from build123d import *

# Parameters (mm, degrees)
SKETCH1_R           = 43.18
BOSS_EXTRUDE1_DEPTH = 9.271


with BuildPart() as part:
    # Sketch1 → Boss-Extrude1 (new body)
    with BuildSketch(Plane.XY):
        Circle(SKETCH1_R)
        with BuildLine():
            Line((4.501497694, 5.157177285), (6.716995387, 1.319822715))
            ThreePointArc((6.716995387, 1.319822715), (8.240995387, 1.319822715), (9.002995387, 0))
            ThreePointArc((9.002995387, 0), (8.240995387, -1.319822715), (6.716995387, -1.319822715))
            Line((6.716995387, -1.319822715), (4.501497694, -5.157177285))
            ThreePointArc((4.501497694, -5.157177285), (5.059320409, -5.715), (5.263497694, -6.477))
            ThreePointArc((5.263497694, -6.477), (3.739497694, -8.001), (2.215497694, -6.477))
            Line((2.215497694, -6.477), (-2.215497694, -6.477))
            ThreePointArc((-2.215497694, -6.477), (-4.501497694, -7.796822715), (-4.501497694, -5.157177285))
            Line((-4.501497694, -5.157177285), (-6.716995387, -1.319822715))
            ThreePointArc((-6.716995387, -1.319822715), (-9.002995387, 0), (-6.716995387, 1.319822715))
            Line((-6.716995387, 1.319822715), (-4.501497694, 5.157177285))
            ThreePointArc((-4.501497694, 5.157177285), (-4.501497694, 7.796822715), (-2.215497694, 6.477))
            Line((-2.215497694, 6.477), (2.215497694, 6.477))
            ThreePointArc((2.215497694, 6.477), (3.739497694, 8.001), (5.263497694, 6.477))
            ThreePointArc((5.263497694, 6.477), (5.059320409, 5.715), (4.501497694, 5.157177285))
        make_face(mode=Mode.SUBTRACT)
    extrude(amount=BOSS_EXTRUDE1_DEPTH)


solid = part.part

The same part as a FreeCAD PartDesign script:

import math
import FreeCAD as App
import Part
import Sketcher
Q = App.Units.Quantity

doc = App.newDocument("Part")
body = doc.addObject("PartDesign::Body", "Body")

# Sketch on XY plane
sketch1 = body.newObject("Sketcher::SketchObject", "Sketch")
sketch1.AttachmentSupport = (doc.getObject("XY_Plane"), [""])
sketch1.MapMode = "FlatFace"
sketch1.addGeometry(Part.Circle(App.Vector(0, 0, 0), App.Vector(0, 0, 1), 43.18), False)
sketch1.addGeometry(Part.ArcOfCircle(Part.Circle(App.Vector(3.739498, 6.477, 0), App.Vector(0, 0, 1), 1.524), math.radians(-60), math.radians(0)), False)
sketch1.addGeometry(Part.LineSegment(App.Vector(4.501498, 5.157177, 0), App.Vector(6.716995, 1.319823, 0)), False)
sketch1.addGeometry(Part.ArcOfCircle(Part.Circle(App.Vector(7.478995, 0, 0), App.Vector(0, 0, 1), 1.524), math.radians(0), math.radians(120)), False)
sketch1.addGeometry(Part.ArcOfCircle(Part.Circle(App.Vector(7.478995, 0, 0), App.Vector(0, 0, 1), 1.524), math.radians(-120), math.radians(0)), False)
sketch1.addGeometry(Part.LineSegment(App.Vector(6.716995, -1.319823, 0), App.Vector(4.501498, -5.157177, 0)), False)
sketch1.addGeometry(Part.ArcOfCircle(Part.Circle(App.Vector(3.739498, -6.477, 0), App.Vector(0, 0, 1), 1.524), math.radians(0), math.radians(60)), False)
sketch1.addGeometry(Part.ArcOfCircle(Part.Circle(App.Vector(3.739498, -6.477, 0), App.Vector(0, 0, 1), 1.524), math.radians(180), math.radians(360)), False)
sketch1.addGeometry(Part.LineSegment(App.Vector(2.215498, -6.477, 0), App.Vector(-2.215498, -6.477, 0)), False)
sketch1.addGeometry(Part.ArcOfCircle(Part.Circle(App.Vector(-3.739498, -6.477, 0), App.Vector(0, 0, 1), 1.524), math.radians(120), math.radians(360)), False)
sketch1.addGeometry(Part.LineSegment(App.Vector(-4.501498, -5.157177, 0), App.Vector(-6.716995, -1.319823, 0)), False)
sketch1.addGeometry(Part.ArcOfCircle(Part.Circle(App.Vector(-7.478995, 0, 0), App.Vector(0, 0, 1), 1.524), math.radians(60), math.radians(300)), False)
sketch1.addGeometry(Part.LineSegment(App.Vector(-6.716995, 1.319823, 0), App.Vector(-4.501498, 5.157177, 0)), False)
sketch1.addGeometry(Part.ArcOfCircle(Part.Circle(App.Vector(-3.739498, 6.477, 0), App.Vector(0, 0, 1), 1.524), math.radians(0), math.radians(240)), False)
sketch1.addGeometry(Part.LineSegment(App.Vector(-2.215498, 6.477, 0), App.Vector(2.215498, 6.477, 0)), False)
sketch1.addGeometry(Part.ArcOfCircle(Part.Circle(App.Vector(3.739498, 6.477, 0), App.Vector(0, 0, 1), 1.524), math.radians(0), math.radians(180)), False)
sketch1.addConstraint(Sketcher.Constraint("Coincident", 1, 1, 2, 1))
sketch1.addConstraint(Sketcher.Constraint("Coincident", 2, 2, 3, 2))
sketch1.addConstraint(Sketcher.Constraint("Tangent", 3, 1, 4, 2))
sketch1.addConstraint(Sketcher.Constraint("Coincident", 4, 1, 5, 1))
sketch1.addConstraint(Sketcher.Constraint("Coincident", 5, 2, 6, 2))
sketch1.addConstraint(Sketcher.Constraint("Tangent", 6, 1, 7, 2))
sketch1.addConstraint(Sketcher.Constraint("Coincident", 7, 1, 8, 1))
sketch1.addConstraint(Sketcher.Constraint("Coincident", 8, 2, 9, 2))
sketch1.addConstraint(Sketcher.Constraint("Coincident", 9, 1, 10, 1))
sketch1.addConstraint(Sketcher.Constraint("Coincident", 10, 2, 11, 2))
sketch1.addConstraint(Sketcher.Constraint("Coincident", 11, 1, 12, 1))
sketch1.addConstraint(Sketcher.Constraint("Coincident", 12, 2, 13, 2))
sketch1.addConstraint(Sketcher.Constraint("Coincident", 13, 1, 14, 1))
sketch1.addConstraint(Sketcher.Constraint("Coincident", 14, 2, 15, 2))
sketch1.addConstraint(Sketcher.Constraint("Tangent", 15, 1, 1, 2))
sketch1.addConstraint(Sketcher.Constraint("Horizontal", 8))
sketch1.addConstraint(Sketcher.Constraint("Horizontal", 14))
sketch1.addConstraint(Sketcher.Constraint("Coincident", 0, 3, -1, 1))
sketch1.addConstraint(Sketcher.Constraint("Equal", 1, 3))
sketch1.addConstraint(Sketcher.Constraint("Equal", 3, 4))
sketch1.addConstraint(Sketcher.Constraint("Equal", 4, 6))
sketch1.addConstraint(Sketcher.Constraint("Equal", 6, 7))
sketch1.addConstraint(Sketcher.Constraint("Equal", 7, 9))
sketch1.addConstraint(Sketcher.Constraint("Equal", 9, 11))
sketch1.addConstraint(Sketcher.Constraint("Equal", 11, 13))
sketch1.addConstraint(Sketcher.Constraint("Equal", 13, 15))
sketch1.addConstraint(Sketcher.Constraint("Symmetric", 1, 3, 9, 3, -1, 1))
sketch1.addConstraint(Sketcher.Constraint("Symmetric", 3, 3, 11, 3, -1, 1))
sketch1.addConstraint(Sketcher.Constraint("Symmetric", 6, 3, 13, 3, -1, 1))
sketch1.addConstraint(Sketcher.Constraint("Symmetric", 6, 3, 9, 3, -2))
sketch1.addConstraint(Sketcher.Constraint("Symmetric", 4, 1, 10, 2, -2))
sketch1.addConstraint(Sketcher.Constraint("PointOnObject", 3, 1, -1))
sketch1.addConstraint(Sketcher.Constraint("Parallel", 2, 10))
sketch1.addConstraint(Sketcher.Constraint("Parallel", 5, 12))
sketch1.addConstraint(Sketcher.Constraint("Horizontal", 9, 3, 6, 1))
sketch1.addConstraint(Sketcher.Constraint("Horizontal", 6, 1, 7, 1))
sketch1.addConstraint(Sketcher.Constraint("Horizontal", 5, 2, 9, 1))
sketch1.addConstraint(Sketcher.Constraint("Horizontal", 2, 2, 11, 1))
sketch1.addConstraint(Sketcher.Constraint("Horizontal", 15, 3, 13, 1))
sketch1.addConstraint(Sketcher.Constraint("Horizontal", 14, 2, 15, 1))
sketch1.addConstraint(Sketcher.Constraint("Vertical", 2, 2, 4, 1))
sketch1.addConstraint(Sketcher.Constraint("Diameter", 0, Q("3.4 in")))
sketch1.addConstraint(Sketcher.Constraint("Radius", 1, Q("0.06 in")))
sketch1.addConstraint(Sketcher.Constraint("Angle", 2, Q("-60 deg")))
sketch1.addConstraint(Sketcher.Constraint("DistanceY", 6, 3, 1, 3, Q("0.51 in")))
sketch1.addConstraint(Sketcher.Constraint("DistanceX", 15, 3, 1, 1, Q("0.03 in")))
sketch1.addConstraint(Sketcher.Constraint("DistanceX", 2, 2, 3, 3, Q("0.03 in")))
sketch1.addConstraint(Sketcher.Constraint("DistanceX", 8, 2, 8, 1, Q("4.430995 mm")))
pad1 = body.newObject("PartDesign::Pad", "Pad")
pad1.Profile = sketch1
pad1.Length = Q("0.365 in")

doc.recompute()
